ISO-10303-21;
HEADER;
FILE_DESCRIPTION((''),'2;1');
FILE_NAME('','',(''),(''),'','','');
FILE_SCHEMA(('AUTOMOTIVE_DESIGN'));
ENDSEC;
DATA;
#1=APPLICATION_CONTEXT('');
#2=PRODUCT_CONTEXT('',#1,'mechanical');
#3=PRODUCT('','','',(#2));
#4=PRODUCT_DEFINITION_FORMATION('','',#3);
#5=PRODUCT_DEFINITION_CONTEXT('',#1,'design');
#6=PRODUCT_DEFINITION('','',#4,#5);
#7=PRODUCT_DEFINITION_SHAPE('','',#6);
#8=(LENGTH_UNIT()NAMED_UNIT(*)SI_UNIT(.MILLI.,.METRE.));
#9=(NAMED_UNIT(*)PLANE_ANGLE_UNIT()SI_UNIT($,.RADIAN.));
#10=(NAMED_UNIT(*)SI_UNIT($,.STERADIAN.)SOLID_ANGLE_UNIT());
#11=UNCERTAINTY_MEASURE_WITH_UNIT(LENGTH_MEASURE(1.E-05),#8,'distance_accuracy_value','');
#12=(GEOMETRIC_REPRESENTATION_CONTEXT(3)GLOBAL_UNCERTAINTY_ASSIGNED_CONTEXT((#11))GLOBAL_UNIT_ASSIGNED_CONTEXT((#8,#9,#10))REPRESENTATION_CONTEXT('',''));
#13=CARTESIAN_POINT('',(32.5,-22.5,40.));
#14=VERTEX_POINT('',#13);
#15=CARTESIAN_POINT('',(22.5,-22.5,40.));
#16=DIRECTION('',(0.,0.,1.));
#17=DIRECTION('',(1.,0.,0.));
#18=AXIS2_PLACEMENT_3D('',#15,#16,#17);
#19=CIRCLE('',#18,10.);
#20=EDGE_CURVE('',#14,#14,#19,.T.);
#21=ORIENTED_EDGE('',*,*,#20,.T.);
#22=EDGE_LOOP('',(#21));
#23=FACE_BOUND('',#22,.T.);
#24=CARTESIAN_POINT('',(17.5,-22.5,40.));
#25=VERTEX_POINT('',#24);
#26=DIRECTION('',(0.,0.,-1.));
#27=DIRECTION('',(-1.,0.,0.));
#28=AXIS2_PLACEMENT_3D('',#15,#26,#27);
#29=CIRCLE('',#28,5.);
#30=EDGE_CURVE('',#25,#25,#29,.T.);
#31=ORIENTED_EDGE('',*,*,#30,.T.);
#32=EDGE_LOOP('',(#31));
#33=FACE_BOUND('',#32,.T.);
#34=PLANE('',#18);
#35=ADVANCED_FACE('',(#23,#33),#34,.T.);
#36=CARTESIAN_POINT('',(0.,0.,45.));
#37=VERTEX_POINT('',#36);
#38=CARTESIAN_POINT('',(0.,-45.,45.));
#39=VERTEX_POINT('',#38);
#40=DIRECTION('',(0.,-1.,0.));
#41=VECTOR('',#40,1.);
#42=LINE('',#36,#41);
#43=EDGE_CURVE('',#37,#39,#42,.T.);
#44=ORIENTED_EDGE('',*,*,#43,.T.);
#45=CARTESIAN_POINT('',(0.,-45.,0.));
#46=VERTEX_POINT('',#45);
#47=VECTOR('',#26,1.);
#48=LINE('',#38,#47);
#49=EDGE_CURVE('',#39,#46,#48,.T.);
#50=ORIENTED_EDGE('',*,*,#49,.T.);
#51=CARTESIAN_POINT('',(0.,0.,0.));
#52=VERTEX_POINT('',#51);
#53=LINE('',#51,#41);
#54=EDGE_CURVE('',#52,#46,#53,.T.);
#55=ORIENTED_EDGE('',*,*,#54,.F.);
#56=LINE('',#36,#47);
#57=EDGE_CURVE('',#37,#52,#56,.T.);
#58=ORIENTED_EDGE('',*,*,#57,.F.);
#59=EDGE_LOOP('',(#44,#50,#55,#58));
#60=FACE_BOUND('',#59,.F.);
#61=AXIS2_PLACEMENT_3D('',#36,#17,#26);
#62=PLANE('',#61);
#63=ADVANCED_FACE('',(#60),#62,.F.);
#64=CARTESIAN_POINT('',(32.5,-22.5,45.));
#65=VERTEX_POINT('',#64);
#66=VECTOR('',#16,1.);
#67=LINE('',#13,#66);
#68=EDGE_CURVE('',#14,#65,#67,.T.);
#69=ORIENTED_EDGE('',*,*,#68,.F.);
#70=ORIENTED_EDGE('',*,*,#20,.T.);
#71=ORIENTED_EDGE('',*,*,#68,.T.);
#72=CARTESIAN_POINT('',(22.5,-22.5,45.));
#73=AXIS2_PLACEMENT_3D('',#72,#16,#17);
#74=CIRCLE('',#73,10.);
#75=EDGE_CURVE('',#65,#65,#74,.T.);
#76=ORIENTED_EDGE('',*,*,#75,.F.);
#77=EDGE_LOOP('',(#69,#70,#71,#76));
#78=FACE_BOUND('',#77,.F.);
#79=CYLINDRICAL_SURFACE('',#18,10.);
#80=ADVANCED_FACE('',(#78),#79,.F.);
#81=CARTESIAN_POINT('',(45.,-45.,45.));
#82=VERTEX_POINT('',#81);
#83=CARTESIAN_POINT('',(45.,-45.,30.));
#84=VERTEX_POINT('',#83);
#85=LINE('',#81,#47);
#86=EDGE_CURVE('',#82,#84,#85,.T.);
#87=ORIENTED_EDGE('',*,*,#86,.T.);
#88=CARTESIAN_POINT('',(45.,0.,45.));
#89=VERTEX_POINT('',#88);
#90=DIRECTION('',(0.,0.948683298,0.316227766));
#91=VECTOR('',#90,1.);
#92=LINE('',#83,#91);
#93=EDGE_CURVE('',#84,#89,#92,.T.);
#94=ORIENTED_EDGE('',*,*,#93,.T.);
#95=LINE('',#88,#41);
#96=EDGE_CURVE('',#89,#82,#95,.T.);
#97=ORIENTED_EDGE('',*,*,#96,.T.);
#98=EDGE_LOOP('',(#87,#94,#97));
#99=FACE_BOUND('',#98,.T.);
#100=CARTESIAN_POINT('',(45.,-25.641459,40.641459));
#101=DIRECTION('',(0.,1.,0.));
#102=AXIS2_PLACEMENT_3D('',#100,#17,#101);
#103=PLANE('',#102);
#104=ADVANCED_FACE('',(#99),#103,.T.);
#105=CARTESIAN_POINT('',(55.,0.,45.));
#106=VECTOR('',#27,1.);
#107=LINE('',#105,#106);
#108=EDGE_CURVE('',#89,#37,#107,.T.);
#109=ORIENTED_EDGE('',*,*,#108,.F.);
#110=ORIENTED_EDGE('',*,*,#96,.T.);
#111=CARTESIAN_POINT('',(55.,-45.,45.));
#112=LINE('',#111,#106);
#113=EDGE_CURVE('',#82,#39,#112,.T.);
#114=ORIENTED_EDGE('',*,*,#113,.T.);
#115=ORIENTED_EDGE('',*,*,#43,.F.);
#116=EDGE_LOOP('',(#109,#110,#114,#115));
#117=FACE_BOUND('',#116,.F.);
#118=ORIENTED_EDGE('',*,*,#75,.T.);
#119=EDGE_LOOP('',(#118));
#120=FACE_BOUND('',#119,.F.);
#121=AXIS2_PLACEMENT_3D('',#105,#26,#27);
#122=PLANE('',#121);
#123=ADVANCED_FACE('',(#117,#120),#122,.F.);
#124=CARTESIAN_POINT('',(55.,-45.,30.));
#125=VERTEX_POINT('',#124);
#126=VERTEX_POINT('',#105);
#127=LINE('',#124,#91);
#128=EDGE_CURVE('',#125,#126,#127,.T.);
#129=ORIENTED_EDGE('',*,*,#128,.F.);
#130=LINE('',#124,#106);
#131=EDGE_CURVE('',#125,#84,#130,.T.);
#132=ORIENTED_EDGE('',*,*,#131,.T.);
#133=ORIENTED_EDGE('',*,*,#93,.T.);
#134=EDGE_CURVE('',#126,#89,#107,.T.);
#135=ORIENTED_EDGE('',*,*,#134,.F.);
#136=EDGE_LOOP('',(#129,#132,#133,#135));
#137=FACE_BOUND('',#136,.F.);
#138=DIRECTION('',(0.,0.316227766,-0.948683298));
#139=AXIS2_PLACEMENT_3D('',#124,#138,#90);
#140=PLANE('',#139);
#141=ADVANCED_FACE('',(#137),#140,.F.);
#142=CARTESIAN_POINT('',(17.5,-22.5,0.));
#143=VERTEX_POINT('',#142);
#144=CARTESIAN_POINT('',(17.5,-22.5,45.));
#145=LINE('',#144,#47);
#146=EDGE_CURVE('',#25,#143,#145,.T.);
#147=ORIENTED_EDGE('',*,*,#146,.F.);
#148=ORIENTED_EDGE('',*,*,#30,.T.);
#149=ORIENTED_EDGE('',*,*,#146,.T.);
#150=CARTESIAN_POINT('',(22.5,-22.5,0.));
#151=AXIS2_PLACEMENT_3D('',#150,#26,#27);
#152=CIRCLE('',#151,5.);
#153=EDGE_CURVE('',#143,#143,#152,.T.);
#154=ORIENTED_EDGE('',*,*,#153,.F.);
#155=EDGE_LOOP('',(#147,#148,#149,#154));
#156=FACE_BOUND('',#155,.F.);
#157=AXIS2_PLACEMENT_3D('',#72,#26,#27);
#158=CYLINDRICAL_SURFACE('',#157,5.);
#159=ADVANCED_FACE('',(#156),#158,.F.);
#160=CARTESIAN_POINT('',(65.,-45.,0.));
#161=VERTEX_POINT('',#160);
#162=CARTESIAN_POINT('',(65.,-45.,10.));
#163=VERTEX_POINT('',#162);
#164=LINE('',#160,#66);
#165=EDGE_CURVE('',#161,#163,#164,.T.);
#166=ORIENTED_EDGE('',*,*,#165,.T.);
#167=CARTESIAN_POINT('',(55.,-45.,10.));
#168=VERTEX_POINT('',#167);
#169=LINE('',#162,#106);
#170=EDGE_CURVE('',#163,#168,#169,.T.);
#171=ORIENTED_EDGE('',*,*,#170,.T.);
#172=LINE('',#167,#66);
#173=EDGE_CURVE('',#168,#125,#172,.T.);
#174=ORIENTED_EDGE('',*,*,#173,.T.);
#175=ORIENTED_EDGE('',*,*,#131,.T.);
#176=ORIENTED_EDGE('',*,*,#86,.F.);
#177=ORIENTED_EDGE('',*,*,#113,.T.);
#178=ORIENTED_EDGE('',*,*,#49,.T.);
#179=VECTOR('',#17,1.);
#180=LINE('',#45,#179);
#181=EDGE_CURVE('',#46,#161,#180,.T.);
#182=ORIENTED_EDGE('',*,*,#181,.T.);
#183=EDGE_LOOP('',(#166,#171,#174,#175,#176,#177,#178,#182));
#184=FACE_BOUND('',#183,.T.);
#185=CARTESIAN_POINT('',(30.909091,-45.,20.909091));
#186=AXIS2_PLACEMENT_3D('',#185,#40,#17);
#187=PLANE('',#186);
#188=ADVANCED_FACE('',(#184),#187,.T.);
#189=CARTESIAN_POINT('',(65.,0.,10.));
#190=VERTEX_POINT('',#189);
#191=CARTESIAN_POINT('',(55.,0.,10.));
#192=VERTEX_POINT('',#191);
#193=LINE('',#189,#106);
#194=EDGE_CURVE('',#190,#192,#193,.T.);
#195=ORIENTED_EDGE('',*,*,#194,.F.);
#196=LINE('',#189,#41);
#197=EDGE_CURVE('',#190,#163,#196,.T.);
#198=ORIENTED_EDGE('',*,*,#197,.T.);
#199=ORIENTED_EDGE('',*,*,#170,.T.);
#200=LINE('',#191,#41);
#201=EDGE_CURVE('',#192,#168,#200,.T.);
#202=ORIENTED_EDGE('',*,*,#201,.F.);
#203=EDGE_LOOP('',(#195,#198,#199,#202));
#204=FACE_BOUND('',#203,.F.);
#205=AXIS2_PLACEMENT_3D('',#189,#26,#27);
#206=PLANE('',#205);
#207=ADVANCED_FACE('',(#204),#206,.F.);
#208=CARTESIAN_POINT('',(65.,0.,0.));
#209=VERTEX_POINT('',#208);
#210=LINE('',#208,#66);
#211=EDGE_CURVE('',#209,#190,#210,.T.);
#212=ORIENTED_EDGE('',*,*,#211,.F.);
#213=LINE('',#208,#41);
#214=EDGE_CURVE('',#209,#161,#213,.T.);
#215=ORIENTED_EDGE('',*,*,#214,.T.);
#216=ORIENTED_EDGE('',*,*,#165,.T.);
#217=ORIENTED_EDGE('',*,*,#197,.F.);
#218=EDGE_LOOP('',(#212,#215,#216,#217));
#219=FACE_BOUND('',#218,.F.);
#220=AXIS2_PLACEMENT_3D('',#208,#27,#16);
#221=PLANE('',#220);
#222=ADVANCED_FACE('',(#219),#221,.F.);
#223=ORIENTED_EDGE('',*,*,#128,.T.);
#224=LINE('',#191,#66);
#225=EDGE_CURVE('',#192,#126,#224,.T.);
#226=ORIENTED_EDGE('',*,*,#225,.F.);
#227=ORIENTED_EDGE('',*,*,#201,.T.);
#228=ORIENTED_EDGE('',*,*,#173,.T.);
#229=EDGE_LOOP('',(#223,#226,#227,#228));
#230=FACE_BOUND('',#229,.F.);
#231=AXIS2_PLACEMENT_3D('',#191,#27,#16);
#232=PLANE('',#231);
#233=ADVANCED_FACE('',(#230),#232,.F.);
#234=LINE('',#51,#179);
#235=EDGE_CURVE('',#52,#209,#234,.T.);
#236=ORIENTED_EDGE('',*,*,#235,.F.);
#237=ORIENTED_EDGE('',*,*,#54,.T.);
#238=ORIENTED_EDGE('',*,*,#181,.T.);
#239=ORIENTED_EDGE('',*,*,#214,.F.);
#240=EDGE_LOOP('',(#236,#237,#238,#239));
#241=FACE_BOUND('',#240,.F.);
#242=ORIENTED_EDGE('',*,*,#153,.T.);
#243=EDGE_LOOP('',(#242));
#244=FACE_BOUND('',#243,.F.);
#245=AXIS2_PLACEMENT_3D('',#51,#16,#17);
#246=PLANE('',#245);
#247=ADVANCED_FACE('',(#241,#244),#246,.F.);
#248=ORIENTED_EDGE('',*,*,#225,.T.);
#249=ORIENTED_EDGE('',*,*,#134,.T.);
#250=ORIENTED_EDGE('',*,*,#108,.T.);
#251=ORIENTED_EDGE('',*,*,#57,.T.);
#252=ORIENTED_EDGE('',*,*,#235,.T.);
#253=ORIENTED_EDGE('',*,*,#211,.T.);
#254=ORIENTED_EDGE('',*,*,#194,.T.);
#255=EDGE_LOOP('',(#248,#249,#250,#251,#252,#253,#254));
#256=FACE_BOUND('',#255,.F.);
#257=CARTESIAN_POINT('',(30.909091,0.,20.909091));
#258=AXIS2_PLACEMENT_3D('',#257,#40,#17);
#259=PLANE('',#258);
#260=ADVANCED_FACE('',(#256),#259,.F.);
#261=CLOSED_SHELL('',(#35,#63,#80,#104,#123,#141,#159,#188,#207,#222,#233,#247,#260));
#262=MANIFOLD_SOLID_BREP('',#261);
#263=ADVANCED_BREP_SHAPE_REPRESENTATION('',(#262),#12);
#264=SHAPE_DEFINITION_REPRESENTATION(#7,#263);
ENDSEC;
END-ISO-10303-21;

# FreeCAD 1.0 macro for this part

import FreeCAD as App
import Part
import Sketcher

V = App.Vector

doc = App.newDocument("Part")
body = doc.addObject("PartDesign::Body", "Body")

sketch1 = body.newObject("Sketcher::SketchObject", "Sketch")
sketch1.AttachmentSupport = (doc.getObject("XZ_Plane"), [""])
sketch1.MapMode = "FlatFace"
sketch1.addGeometry([
    Part.LineSegment(V(0, 45, 0), V(0, 0, 0)),
    Part.LineSegment(V(0, 0, 0), V(65, 0, 0)),
    Part.LineSegment(V(65, 0, 0), V(65, 10, 0)),
    Part.LineSegment(V(65, 10, 0), V(55, 10, 0)),
    Part.LineSegment(V(55, 10, 0), V(55, 45, 0)),
    Part.LineSegment(V(55, 45, 0), V(0, 45, 0)),
], False)
sketch1.addConstraint([
    Sketcher.Constraint("Coincident", 0, 2, 1, 1),
    Sketcher.Constraint("Coincident", 1, 2, 2, 1),
    Sketcher.Constraint("Coincident", 2, 2, 3, 1),
    Sketcher.Constraint("Coincident", 3, 2, 4, 1),
    Sketcher.Constraint("Coincident", 4, 2, 5, 1),
    Sketcher.Constraint("Coincident", 5, 2, 0, 1),
    Sketcher.Constraint("Vertical", 0),
    Sketcher.Constraint("Horizontal", 1),
    Sketcher.Constraint("Vertical", 2),
    Sketcher.Constraint("Horizontal", 3),
    Sketcher.Constraint("Vertical", 4),
    Sketcher.Constraint("Horizontal", 5),
    Sketcher.Constraint("Coincident", 0, 2, -1, 1),
    Sketcher.Constraint("Equal", 3, 2),
    Sketcher.Constraint("DistanceX", 1, 1, 1, 2, 65.0),
    Sketcher.Constraint("DistanceX", 3, 2, 3, 1, 10.0),
    Sketcher.Constraint("DistanceY", 0, 2, 0, 1, 45.0),
])
pad1 = body.newObject("PartDesign::Pad", "Pad")
pad1.Profile = sketch1
pad1.Length = 45

sketch2 = body.newObject("Sketcher::SketchObject", "Sketch001")
sketch2.AttachmentSupport = (doc.getObject("YZ_Plane"), [""])
sketch2.MapMode = "FlatFace"
sketch2.AttachmentOffset = App.Placement(V(0, 0, 55), App.Rotation())
sketch2.addGeometry([
    Part.LineSegment(V(-45, 30, 0), V(0, 45, 0)),
    Part.LineSegment(V(0, 45, 0), V(-45, 45, 0)),
    Part.LineSegment(V(-45, 45, 0), V(-45, 30, 0)),
], False)
sketch2.addConstraint([
    Sketcher.Constraint("Coincident", 0, 2, 1, 1),
    Sketcher.Constraint("Coincident", 1, 2, 2, 1),
    Sketcher.Constraint("Coincident", 2, 2, 0, 1),
    Sketcher.Constraint("Horizontal", 1),
    Sketcher.Constraint("Vertical", 2),
    Sketcher.Constraint("PointOnObject", 0, 2, -2),
    Sketcher.Constraint("DistanceX", 1, 2, 1, 1, 45.0),
    Sketcher.Constraint("DistanceY", 2, 2, 2, 1, 15.0),
    Sketcher.Constraint("DistanceY", -1, 1, 0, 2, 45.0),
])
pocket1 = body.newObject("PartDesign::Pocket", "Pocket")
pocket1.Profile = sketch2
pocket1.Length = 10

sketch3 = body.newObject("Sketcher::SketchObject", "Sketch002")
sketch3.AttachmentSupport = (doc.getObject("XY_Plane"), [""])
sketch3.MapMode = "FlatFace"
sketch3.AttachmentOffset = App.Placement(V(0, 0, 45), App.Rotation())
sketch3.addGeometry(Part.Circle(V(22, -22, 0), V(0, 0, 1), 5), False)
sketch3.addConstraint([
    Sketcher.Constraint("Diameter", 0, 10.0),
    Sketcher.Constraint("DistanceX", -1, 1, 0, 3, 22.5),
    Sketcher.Constraint("DistanceY", 0, 3, -1, 1, 22.5),
])
doc.recompute()
hole = body.newObject("PartDesign::Hole", "Hole")
hole.Profile = sketch3
hole.ThreadType = "None"
hole.Diameter = 10
hole.DepthType = "ThroughAll"
hole.HoleCutType = "Counterbore"
hole.HoleCutDiameter = 20
hole.HoleCutDepth = 5

doc.recompute()
